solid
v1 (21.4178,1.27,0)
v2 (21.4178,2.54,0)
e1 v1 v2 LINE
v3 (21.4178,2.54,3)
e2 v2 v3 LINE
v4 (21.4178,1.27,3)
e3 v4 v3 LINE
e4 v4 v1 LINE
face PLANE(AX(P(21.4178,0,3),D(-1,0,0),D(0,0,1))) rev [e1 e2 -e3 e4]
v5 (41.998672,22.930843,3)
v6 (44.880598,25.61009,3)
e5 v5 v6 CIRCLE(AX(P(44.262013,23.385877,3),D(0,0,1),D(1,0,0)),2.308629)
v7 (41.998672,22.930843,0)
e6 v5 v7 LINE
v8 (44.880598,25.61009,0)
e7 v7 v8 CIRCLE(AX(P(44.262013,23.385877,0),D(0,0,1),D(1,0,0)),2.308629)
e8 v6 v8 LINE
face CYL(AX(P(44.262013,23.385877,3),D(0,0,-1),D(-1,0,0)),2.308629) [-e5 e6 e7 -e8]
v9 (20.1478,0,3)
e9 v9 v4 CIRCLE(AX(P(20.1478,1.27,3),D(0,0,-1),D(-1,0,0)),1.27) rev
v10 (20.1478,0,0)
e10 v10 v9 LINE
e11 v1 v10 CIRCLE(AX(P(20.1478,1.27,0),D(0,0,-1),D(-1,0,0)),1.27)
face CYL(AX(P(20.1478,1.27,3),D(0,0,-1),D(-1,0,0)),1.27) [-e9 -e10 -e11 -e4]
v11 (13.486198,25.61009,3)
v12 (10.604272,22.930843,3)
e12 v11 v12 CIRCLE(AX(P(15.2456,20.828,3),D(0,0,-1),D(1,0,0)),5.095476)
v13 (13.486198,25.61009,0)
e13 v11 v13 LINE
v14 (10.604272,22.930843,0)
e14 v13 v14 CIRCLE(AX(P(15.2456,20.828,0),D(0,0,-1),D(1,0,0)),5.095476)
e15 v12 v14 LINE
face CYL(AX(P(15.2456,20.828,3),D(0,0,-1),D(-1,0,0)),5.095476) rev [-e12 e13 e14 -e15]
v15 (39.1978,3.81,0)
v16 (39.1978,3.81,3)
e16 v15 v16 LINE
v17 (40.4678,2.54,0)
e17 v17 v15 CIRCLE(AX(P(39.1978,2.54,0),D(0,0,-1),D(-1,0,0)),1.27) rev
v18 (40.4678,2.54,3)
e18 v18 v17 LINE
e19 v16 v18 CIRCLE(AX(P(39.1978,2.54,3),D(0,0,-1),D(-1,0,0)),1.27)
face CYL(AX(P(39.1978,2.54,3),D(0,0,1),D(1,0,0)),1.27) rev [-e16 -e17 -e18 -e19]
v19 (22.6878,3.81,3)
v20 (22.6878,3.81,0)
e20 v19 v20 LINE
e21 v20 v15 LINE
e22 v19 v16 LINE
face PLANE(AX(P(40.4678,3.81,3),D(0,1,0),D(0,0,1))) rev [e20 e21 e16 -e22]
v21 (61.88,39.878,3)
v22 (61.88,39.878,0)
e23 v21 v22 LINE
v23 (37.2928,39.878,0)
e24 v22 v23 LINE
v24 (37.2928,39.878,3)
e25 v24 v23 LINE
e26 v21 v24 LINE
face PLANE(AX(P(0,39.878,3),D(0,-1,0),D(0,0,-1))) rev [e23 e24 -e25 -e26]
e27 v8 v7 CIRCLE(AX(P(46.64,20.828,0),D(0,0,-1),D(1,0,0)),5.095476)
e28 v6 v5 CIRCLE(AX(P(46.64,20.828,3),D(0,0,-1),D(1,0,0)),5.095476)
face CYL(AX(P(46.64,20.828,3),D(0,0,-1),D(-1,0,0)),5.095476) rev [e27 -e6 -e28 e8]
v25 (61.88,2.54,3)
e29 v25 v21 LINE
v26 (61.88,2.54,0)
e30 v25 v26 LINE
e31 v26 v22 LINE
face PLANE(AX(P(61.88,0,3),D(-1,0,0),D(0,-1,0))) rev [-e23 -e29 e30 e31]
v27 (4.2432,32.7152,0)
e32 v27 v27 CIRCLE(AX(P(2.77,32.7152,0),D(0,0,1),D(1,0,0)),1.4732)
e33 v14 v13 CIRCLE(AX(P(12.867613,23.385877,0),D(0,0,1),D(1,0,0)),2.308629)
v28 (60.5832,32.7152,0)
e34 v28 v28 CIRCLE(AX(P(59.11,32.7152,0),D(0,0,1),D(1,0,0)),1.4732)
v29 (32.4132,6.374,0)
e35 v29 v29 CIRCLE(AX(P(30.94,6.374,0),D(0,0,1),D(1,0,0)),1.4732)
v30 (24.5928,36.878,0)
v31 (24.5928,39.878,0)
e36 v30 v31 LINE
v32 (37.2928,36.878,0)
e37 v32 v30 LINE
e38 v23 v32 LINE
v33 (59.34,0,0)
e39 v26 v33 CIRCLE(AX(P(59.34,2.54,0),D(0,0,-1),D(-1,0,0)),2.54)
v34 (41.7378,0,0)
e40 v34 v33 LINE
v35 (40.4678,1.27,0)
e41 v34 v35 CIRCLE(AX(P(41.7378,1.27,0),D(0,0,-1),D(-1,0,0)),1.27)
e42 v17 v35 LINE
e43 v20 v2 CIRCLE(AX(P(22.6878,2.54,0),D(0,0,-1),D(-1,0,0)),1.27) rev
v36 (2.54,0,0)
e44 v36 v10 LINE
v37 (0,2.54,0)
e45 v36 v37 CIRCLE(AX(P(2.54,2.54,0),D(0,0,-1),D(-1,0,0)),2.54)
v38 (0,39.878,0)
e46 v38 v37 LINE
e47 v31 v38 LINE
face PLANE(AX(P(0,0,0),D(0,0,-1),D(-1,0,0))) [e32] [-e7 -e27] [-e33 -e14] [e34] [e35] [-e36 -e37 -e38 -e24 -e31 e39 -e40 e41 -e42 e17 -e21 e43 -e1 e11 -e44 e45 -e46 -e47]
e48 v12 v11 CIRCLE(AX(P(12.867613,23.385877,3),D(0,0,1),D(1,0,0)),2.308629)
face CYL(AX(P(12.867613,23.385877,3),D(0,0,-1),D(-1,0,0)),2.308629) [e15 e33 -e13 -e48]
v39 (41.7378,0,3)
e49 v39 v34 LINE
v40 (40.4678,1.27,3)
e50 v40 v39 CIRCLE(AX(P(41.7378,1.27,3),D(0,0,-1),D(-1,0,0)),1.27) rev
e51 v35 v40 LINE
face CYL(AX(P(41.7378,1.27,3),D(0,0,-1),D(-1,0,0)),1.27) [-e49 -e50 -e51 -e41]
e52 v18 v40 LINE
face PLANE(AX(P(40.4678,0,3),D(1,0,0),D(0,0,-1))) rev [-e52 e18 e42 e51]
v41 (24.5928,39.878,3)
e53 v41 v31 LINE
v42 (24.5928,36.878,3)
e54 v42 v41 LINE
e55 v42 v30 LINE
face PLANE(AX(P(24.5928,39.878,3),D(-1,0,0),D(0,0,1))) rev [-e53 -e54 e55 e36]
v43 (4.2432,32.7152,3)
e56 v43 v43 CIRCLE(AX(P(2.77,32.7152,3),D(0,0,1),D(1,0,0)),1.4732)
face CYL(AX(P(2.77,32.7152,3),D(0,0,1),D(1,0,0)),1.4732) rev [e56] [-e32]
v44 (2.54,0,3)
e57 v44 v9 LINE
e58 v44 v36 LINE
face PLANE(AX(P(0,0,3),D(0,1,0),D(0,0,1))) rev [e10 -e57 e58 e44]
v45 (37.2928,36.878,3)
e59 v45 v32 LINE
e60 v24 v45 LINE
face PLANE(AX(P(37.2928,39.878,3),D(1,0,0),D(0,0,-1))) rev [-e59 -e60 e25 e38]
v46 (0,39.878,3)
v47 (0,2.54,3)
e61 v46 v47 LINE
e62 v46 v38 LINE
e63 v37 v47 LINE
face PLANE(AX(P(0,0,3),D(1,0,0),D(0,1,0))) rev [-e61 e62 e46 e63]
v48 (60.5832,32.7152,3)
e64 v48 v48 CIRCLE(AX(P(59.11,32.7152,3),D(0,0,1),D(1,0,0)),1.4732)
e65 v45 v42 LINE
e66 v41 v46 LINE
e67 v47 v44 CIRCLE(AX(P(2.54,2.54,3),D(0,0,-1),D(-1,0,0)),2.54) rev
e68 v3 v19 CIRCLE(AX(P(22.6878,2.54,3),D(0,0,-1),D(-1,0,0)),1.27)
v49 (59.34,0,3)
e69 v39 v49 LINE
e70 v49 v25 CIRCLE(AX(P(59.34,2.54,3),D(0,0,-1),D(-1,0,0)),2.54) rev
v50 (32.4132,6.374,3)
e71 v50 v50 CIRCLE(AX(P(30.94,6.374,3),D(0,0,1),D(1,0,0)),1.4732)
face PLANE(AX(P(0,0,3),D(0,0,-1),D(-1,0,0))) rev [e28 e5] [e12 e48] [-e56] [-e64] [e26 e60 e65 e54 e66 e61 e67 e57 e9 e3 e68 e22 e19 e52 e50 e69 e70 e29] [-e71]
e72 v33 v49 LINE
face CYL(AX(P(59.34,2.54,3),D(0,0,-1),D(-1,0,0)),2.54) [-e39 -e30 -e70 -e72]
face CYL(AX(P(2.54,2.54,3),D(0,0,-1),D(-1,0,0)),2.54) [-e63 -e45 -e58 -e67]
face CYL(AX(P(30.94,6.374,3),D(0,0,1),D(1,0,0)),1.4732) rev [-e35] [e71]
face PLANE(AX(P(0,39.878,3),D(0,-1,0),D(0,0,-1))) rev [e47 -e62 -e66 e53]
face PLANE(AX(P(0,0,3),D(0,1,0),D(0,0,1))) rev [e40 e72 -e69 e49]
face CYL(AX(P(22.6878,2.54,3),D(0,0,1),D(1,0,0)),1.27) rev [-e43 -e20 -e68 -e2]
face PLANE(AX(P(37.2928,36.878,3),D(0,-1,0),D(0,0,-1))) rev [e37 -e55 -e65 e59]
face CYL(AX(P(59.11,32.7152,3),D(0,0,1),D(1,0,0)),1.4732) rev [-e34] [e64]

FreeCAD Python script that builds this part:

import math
import FreeCAD as App
import Part
import Sketcher

V = App.Vector
Q = App.Units.Quantity


def edges_at(feature, points):
    """Names of the edges that pass closest to the given points."""
    edges = feature.Shape.Edges
    near = lambda p: min(range(len(edges)), key=lambda i: edges[i].distToShape(Part.Vertex(*p))[0])
    return sorted({f"Edge{near(p) + 1}" for p in points})

doc = App.newDocument("Part")
body = doc.addObject("PartDesign::Body", "Body")

# Sketch on XY plane
sketch1 = body.newObject("Sketcher::SketchObject", "Sketch")
sketch1.AttachmentSupport = (doc.getObject("XY_Plane"), [""])
sketch1.MapMode = "FlatFace"
sketch1.addGeometry([
    Part.LineSegment(V(0, 40, 0), V(0, 0, 0)),
    Part.LineSegment(V(0, 0, 0), V(62, 0, 0)),
    Part.LineSegment(V(62, 0, 0), V(62, 40, 0)),
    Part.LineSegment(V(62, 40, 0), V(0, 40, 0)),
], False)
sketch1.addConstraint([
    Sketcher.Constraint("Coincident", 0, 2, 1, 1),
    Sketcher.Constraint("Coincident", 1, 2, 2, 1),
    Sketcher.Constraint("Coincident", 2, 2, 3, 1),
    Sketcher.Constraint("Coincident", 3, 2, 0, 1),
    Sketcher.Constraint("Vertical", 0),
    Sketcher.Constraint("Horizontal", 1),
    Sketcher.Constraint("Vertical", 2),
    Sketcher.Constraint("Horizontal", 3),
    Sketcher.Constraint("Coincident", 0, 2, -1, 1),
    Sketcher.Constraint("DistanceY", 0, 2, 0, 1, Q("1.57 in")),
    Sketcher.Constraint("DistanceX", 1, 1, 1, 2, 61.88),
])
pad1 = body.newObject("PartDesign::Pad", "Pad")
pad1.Profile = sketch1
pad1.Length = 3

# Sketch on XY plane
sketch2 = body.newObject("Sketcher::SketchObject", "Sketch001")
sketch2.AttachmentSupport = (doc.getObject("XY_Plane"), [""])
sketch2.MapMode = "FlatFace"
sketch2.AttachmentOffset = App.Placement(V(0, 0, 3), App.Rotation())
sketch2.addGeometry([
    Part.Circle(V(30.9, 6.4, 0), V(0, 0, 1), 1.5),
    Part.Circle(V(59.1, 32.7, 0), V(0, 0, 1), 1.5),
    Part.Circle(V(2.8, 32.7, 0), V(0, 0, 1), 1.5),
], False)
sketch2.addConstraint([
    Sketcher.Constraint("Equal", 0, 1),
    Sketcher.Constraint("Equal", 1, 2),
    Sketcher.Constraint("Horizontal", 1, 3, 2, 3),
    Sketcher.Constraint("Diameter", 0, Q("0.116 in")),
    Sketcher.Constraint("DistanceY", -1, 1, 1, 3, Q("1.288 in")),
    Sketcher.Constraint("DistanceX", -1, 1, 0, 3, 30.94),
    Sketcher.Constraint("DistanceY", -1, 1, 0, 3, 6.374),
    Sketcher.Constraint("DistanceX", -1, 1, 1, 3, 59.11),
    Sketcher.Constraint("DistanceX", -1, 1, 2, 3, 2.77),
])
doc.recompute()
hole = body.newObject("PartDesign::Hole", "Hole")
hole.Profile = sketch2
hole.ThreadType = "None"
hole.Diameter = Q("0.116 in")
hole.DepthType = "ThroughAll"
doc.recompute()

fillet = body.newObject("PartDesign::Fillet", "Fillet")
fillet.Base = (hole, edges_at(hole, [(61.88, 0, 1.5), (0, 0, 1.5)]))
fillet.Radius = Q("0.1 in")

# Sketch on XY plane
sketch3 = body.newObject("Sketcher::SketchObject", "Sketch002")
sketch3.AttachmentSupport = (doc.getObject("XY_Plane"), [""])
sketch3.MapMode = "FlatFace"
sketch3.addGeometry([
    Part.LineSegment(V(37.3, 39.9, 0), V(37.3, 36.9, 0)),
    Part.LineSegment(V(37.3, 36.9, 0), V(24.6, 36.9, 0)),
    Part.LineSegment(V(24.6, 36.9, 0), V(24.6, 39.9, 0)),
    Part.LineSegment(V(24.6, 39.9, 0), V(37.3, 39.9, 0)),
], False)
sketch3.addConstraint([
    Sketcher.Constraint("Coincident", 0, 2, 1, 1),
    Sketcher.Constraint("Coincident", 1, 2, 2, 1),
    Sketcher.Constraint("Coincident", 2, 2, 3, 1),
    Sketcher.Constraint("Coincident", 3, 2, 0, 1),
    Sketcher.Constraint("Vertical", 0),
    Sketcher.Constraint("Horizontal", 1),
    Sketcher.Constraint("Vertical", 2),
    Sketcher.Constraint("Horizontal", 3),
    Sketcher.Constraint("DistanceX", 1, 2, 1, 1, Q("0.5 in")),
    Sketcher.Constraint("DistanceY", -1, 1, 2, 2, Q("1.57 in")),
    Sketcher.Constraint("DistanceY", 0, 2, 0, 1, 3.0),
    Sketcher.Constraint("DistanceX", -1, 1, 0, 2, 37.2928),
])
pocket1 = body.newObject("PartDesign::Pocket", "Pocket")
pocket1.Profile = sketch3
pocket1.Length = 3
pocket1.Reversed = True

# Sketch on XY plane
sketch4 = body.newObject("Sketcher::SketchObject", "Sketch003")
sketch4.AttachmentSupport = (doc.getObject("XY_Plane"), [""])
sketch4.MapMode = "FlatFace"
sketch4.addGeometry([
    Part.LineSegment(V(40.5, 3.8, 0), V(40.5, 0, 0)),
    Part.LineSegment(V(40.5, 0, 0), V(21.4, 0, 0)),
    Part.LineSegment(V(21.4, 0, 0), V(21.4, 3.8, 0)),
    Part.LineSegment(V(21.4, 3.8, 0), V(40.5, 3.8, 0)),
], False)
sketch4.addConstraint([
    Sketcher.Constraint("Coincident", 0, 2, 1, 1),
    Sketcher.Constraint("Coincident", 1, 2, 2, 1),
    Sketcher.Constraint("Coincident", 2, 2, 3, 1),
    Sketcher.Constraint("Coincident", 3, 2, 0, 1),
    Sketcher.Constraint("Vertical", 0),
    Sketcher.Constraint("Horizontal", 1),
    Sketcher.Constraint("Vertical", 2),
    Sketcher.Constraint("Horizontal", 3),
    Sketcher.Constraint("PointOnObject", 0, 2, -1),
    Sketcher.Constraint("DistanceX", 1, 2, 1, 1, Q("0.75 in")),
    Sketcher.Constraint("DistanceY", 0, 2, 0, 1, Q("0.15 in")),
    Sketcher.Constraint("DistanceX", -1, 1, 0, 2, 40.4678),
])
pocket2 = body.newObject("PartDesign::Pocket", "Pocket001")
pocket2.Profile = sketch4
pocket2.Type = "ThroughAll"
pocket2.Reversed = True
doc.recompute()

fillet2 = body.newObject("PartDesign::Fillet", "Fillet001")
fillet2.Base = (pocket2, edges_at(pocket2, [
    (40.468, 0, 1.5),
    (40.468, 3.81, 1.5),
    (21.418, 3.81, 1.5),
    (21.418, 0, 1.5),
]))
fillet2.Radius = Q("0.05 in")

# Sketch on XY plane
sketch5 = body.newObject("Sketcher::SketchObject", "Sketch004")
sketch5.AttachmentSupport = (doc.getObject("XY_Plane"), [""])
sketch5.MapMode = "FlatFace"
sketch5.addGeometry([
    Part.ArcOfCircle(Part.Circle(V(15.2, 20.8, 0), V(0, 0, 1), 5.1), math.radians(156), math.radians(470)),
    Part.ArcOfCircle(Part.Circle(V(12.9, 23.4, 0), V(0, 0, 1), 2.3), math.radians(-169), math.radians(74)),
    Part.ArcOfCircle(Part.Circle(V(44.3, 23.4, 0), V(0, 0, 1), 2.3), math.radians(-169), math.radians(74)),
    Part.ArcOfCircle(Part.Circle(V(46.6, 20.8, 0), V(0, 0, 1), 5.1), math.radians(156), math.radians(470)),
], False)
sketch5.addConstraint([
    Sketcher.Constraint("Coincident", 0, 1, 1, 1),
    Sketcher.Constraint("Coincident", 1, 2, 0, 2),
    Sketcher.Constraint("Coincident", 2, 1, 3, 1),
    Sketcher.Constraint("Coincident", 3, 2, 2, 2),
    Sketcher.Constraint("Equal", 1, 2),
    Sketcher.Constraint("Equal", 0, 3),
    Sketcher.Constraint("Horizontal", 1, 3, 2, 3),
    Sketcher.Constraint("Horizontal", 0, 3, 3, 3),
    Sketcher.Constraint("Horizontal", 0, 1, 2, 1),
    Sketcher.Constraint("DistanceY", -1, 1, 0, 3, Q("0.82 in")),
    Sketcher.Constraint("Radius", 1, 2.308629),
    Sketcher.Constraint("DistanceX", 1, 3, 2, 3, Q("1.236 in")),
    Sketcher.Constraint("Radius", 0, 5.095476),
    Sketcher.Constraint("DistanceX", -1, 1, 0, 3, 15.2456),
    Sketcher.Constraint("DistanceX", -1, 1, 1, 2, 13.486198),
    Sketcher.Constraint("DistanceX", -1, 1, 0, 1, 10.604272),
])
pocket3 = body.newObject("PartDesign::Pocket", "Pocket002")
pocket3.Profile = sketch5
pocket3.Length = 3
pocket3.Reversed = True

doc.recompute()
